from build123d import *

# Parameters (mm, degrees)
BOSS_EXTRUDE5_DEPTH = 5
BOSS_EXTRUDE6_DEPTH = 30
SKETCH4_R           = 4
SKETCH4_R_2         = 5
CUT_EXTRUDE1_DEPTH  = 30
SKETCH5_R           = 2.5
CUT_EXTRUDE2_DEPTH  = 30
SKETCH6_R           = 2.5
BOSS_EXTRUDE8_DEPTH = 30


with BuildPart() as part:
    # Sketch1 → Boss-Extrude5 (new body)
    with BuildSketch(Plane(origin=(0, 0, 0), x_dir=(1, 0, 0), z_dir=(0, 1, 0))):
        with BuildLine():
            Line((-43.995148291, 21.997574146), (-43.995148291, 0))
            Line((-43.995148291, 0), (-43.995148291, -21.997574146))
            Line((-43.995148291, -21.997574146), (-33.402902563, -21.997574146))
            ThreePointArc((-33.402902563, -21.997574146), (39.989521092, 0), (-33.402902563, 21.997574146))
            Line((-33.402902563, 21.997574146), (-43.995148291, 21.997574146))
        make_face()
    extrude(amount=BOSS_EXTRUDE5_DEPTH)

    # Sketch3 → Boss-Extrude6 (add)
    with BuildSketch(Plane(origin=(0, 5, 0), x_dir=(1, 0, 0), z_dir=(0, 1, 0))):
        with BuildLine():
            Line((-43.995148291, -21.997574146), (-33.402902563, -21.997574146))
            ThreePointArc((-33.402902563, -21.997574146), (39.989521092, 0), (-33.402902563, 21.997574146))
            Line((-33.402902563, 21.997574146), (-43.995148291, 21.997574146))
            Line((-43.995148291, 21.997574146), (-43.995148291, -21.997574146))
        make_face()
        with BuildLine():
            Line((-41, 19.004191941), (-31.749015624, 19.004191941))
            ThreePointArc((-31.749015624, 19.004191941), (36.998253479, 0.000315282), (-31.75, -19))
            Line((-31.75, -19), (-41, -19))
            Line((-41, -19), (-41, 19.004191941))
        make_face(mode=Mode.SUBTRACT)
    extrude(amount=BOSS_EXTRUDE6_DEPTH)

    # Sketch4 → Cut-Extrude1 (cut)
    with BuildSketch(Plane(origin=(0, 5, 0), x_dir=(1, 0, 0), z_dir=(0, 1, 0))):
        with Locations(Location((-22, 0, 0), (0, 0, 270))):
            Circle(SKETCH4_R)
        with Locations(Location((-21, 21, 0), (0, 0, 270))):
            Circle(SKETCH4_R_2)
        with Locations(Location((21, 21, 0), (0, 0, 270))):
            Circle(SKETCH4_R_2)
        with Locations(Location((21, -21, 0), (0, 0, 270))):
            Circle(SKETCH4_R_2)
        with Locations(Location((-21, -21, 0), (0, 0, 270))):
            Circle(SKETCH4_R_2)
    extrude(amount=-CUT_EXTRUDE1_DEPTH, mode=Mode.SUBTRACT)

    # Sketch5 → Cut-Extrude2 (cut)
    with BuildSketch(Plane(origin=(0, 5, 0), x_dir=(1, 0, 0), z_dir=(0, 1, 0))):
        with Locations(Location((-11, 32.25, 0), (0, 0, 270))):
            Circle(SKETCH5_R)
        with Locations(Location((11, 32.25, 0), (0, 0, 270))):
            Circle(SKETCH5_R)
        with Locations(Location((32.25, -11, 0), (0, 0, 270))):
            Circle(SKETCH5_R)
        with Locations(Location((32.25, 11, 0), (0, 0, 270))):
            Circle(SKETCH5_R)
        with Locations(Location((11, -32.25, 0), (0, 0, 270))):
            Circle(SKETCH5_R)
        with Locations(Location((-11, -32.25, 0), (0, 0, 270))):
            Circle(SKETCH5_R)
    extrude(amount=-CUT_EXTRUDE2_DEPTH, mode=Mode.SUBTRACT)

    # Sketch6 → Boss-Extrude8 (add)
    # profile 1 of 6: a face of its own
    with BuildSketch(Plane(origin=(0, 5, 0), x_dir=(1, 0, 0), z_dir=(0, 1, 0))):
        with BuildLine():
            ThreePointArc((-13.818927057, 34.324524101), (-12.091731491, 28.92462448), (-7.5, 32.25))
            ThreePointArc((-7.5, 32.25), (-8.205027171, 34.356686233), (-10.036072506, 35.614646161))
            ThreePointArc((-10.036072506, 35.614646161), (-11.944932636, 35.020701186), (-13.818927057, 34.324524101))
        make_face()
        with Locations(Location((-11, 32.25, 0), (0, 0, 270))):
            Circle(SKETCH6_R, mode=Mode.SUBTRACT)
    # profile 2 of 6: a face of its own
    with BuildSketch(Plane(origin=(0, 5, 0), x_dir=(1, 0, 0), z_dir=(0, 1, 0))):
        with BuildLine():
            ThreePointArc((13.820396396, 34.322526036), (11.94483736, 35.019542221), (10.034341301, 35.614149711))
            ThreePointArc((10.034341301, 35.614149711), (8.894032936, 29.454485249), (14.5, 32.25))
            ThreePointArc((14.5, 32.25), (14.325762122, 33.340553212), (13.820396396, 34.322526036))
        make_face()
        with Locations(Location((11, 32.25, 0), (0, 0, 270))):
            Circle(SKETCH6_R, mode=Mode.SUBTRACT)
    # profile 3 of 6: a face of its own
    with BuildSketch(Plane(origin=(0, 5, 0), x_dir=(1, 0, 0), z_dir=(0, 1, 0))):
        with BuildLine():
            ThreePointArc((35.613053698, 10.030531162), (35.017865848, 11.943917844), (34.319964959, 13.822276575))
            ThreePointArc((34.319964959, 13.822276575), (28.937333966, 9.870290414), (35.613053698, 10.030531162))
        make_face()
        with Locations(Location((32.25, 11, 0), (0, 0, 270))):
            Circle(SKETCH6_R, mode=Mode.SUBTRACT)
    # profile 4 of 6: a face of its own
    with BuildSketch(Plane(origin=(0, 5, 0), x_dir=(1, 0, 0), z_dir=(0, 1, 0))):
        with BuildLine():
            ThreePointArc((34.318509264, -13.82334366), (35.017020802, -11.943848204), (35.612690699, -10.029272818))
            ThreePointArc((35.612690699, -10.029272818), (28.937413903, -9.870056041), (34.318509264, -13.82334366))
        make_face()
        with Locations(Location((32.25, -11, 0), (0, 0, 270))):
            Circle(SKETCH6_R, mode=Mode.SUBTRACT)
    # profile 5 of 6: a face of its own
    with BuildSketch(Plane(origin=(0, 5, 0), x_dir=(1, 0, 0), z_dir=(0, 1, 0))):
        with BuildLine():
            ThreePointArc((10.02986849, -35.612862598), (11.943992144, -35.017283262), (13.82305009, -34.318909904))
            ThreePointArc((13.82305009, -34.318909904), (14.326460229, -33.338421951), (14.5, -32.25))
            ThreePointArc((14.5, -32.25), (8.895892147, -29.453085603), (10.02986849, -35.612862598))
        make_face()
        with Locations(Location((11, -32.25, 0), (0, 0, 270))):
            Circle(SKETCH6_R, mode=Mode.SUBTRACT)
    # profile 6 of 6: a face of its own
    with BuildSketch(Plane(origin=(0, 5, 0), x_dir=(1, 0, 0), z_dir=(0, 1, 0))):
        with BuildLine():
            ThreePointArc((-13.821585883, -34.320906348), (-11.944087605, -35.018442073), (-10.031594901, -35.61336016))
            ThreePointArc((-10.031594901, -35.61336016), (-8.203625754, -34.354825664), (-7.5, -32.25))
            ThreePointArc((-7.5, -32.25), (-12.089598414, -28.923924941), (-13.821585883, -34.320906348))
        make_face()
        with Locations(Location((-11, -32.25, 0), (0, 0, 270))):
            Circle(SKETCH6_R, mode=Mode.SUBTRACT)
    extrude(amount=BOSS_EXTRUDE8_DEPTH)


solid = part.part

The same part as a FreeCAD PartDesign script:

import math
import FreeCAD as App
import Part
import Sketcher
Q = App.Units.Quantity

doc = App.newDocument("Part")
body = doc.addObject("PartDesign::Body", "Body")

sketch1 = body.newObject("Sketcher::SketchObject", "Sketch")
sketch1.AttachmentSupport = (doc.getObject("XZ_Plane"), [""])
sketch1.MapMode = "FlatFace"
sketch1.addGeometry(Part.LineSegment(App.Vector(-43.995148, -21.997574, 0), App.Vector(-43.995148, 21.997574, 0)), False)
sketch1.addGeometry(Part.LineSegment(App.Vector(-43.995148, 21.997574, 0), App.Vector(-33.402903, 21.997574, 0)), False)
sketch1.addGeometry(Part.ArcOfCircle(Part.Circle(App.Vector(-0.003307, 0, 0), App.Vector(0, 0, 1), 39.992828), math.radians(-146.630382), math.radians(146.630382)), False)
sketch1.addGeometry(Part.LineSegment(App.Vector(-33.402903, -21.997574, 0), App.Vector(-43.995148, -21.997574, 0)), False)
sketch1.addConstraint(Sketcher.Constraint("Coincident", 0, 2, 1, 1))
sketch1.addConstraint(Sketcher.Constraint("Coincident", 1, 2, 2, 2))
sketch1.addConstraint(Sketcher.Constraint("Coincident", 2, 1, 3, 1))
sketch1.addConstraint(Sketcher.Constraint("Coincident", 3, 2, 0, 1))
sketch1.addConstraint(Sketcher.Constraint("Vertical", 0))
sketch1.addConstraint(Sketcher.Constraint("Horizontal", 1))
sketch1.addConstraint(Sketcher.Constraint("Horizontal", 3))
sketch1.addConstraint(Sketcher.Constraint("Symmetric", 1, 2, 2, 1, -1))
sketch1.addConstraint(Sketcher.Constraint("Radius", 2, Q("39.992828 mm")))
sketch1.addConstraint(Sketcher.Constraint("DistanceY", 0, 1, 0, 2, Q("43.995148 mm")))
sketch1.addConstraint(Sketcher.Constraint("DistanceX", 1, 1, 1, 2, Q("10.592246 mm")))
sketch1.addConstraint(Sketcher.Constraint("DistanceX", 0, 2, -1, 1, Q("43.995148 mm")))
pad1 = body.newObject("PartDesign::Pad", "Pad")
pad1.Profile = sketch1
pad1.Length = 5
pad1.Reversed = True

sketch2 = body.newObject("Sketcher::SketchObject", "Sketch001")
sketch2.AttachmentSupport = (doc.getObject("XZ_Plane"), [""])
sketch2.MapMode = "FlatFace"
sketch2.AttachmentOffset = App.Placement(App.Vector(0, 0, -5), App.Rotation())
sketch2.addGeometry(Part.LineSegment(App.Vector(-43.995148, 21.997574, 0), App.Vector(-33.402903, 21.997574, 0)), False)
sketch2.addGeometry(Part.ArcOfCircle(Part.Circle(App.Vector(-0.003307, 0, 0), App.Vector(0, 0, 1), 39.992828), math.radians(-146.630382), math.radians(146.630382)), False)
sketch2.addGeometry(Part.LineSegment(App.Vector(-33.402903, -21.997574, 0), App.Vector(-43.995148, -21.997574, 0)), False)
sketch2.addGeometry(Part.LineSegment(App.Vector(-43.995148, -21.997574, 0), App.Vector(-43.995148, 21.997574, 0)), False)
sketch2.addGeometry(Part.LineSegment(App.Vector(-41, 19, 0), App.Vector(-41, -19.004192, 0)), False)
sketch2.addGeometry(Part.LineSegment(App.Vector(-41, -19.004192, 0), App.Vector(-31.749016, -19.004192, 0)), False)
sketch2.addGeometry(Part.ArcOfCircle(Part.Circle(App.Vector(-0.001747, -0.001274, 0), App.Vector(0, 0, 1), 37), math.radians(-149.096586), math.radians(149.099554)), False)
sketch2.addGeometry(Part.LineSegment(App.Vector(-31.75, 19, 0), App.Vector(-41, 19, 0)), False)
sketch2.addConstraint(Sketcher.Constraint("Coincident", 0, 2, 1, 2))
sketch2.addConstraint(Sketcher.Constraint("Coincident", 1, 1, 2, 1))
sketch2.addConstraint(Sketcher.Constraint("Coincident", 2, 2, 3, 1))
sketch2.addConstraint(Sketcher.Constraint("Coincident", 3, 2, 0, 1))
sketch2.addConstraint(Sketcher.Constraint("Coincident", 4, 2, 5, 1))
sketch2.addConstraint(Sketcher.Constraint("Coincident", 5, 2, 6, 1))
sketch2.addConstraint(Sketcher.Constraint("Coincident", 6, 2, 7, 1))
sketch2.addConstraint(Sketcher.Constraint("Coincident", 7, 2, 4, 1))
sketch2.addConstraint(Sketcher.Constraint("Horizontal", 0))
sketch2.addConstraint(Sketcher.Constraint("Horizontal", 2))
sketch2.addConstraint(Sketcher.Constraint("Vertical", 3))
sketch2.addConstraint(Sketcher.Constraint("Vertical", 4))
sketch2.addConstraint(Sketcher.Constraint("Horizontal", 5))
sketch2.addConstraint(Sketcher.Constraint("Horizontal", 7))
sketch2.addConstraint(Sketcher.Constraint("Symmetric", 0, 2, 1, 1, -1))
sketch2.addConstraint(Sketcher.Constraint("Radius", 6, Q("37 mm")))
sketch2.addConstraint(Sketcher.Constraint("DistanceX", 4, 2, -1, 1, Q("41 mm")))
sketch2.addConstraint(Sketcher.Constraint("DistanceY", -1, 1, 6, 2, Q("19 mm")))
sketch2.addConstraint(Sketcher.Constraint("DistanceX", 7, 2, 7, 1, Q("9.25 mm")))
sketch2.addConstraint(Sketcher.Constraint("Radius", 1, Q("39.992828 mm")))
sketch2.addConstraint(Sketcher.Constraint("DistanceY", 3, 1, 3, 2, Q("43.995148 mm")))
sketch2.addConstraint(Sketcher.Constraint("DistanceY", 4, 2, 4, 1, Q("38.004192 mm")))
sketch2.addConstraint(Sketcher.Constraint("DistanceY", 1, 1, 6, 3, Q("21.9963 mm")))
sketch2.addConstraint(Sketcher.Constraint("DistanceX", 2, 2, 6, 3, Q("43.993402 mm")))
sketch2.addConstraint(Sketcher.Constraint("DistanceX", 0, 1, 0, 2, Q("10.592246 mm")))
pad2 = body.newObject("PartDesign::Pad", "Pad001")
pad2.Profile = sketch2
pad2.Length = 30
pad2.Reversed = True

sketch3 = body.newObject("Sketcher::SketchObject", "Sketch002")
sketch3.AttachmentSupport = (doc.getObject("XZ_Plane"), [""])
sketch3.MapMode = "FlatFace"
sketch3.AttachmentOffset = App.Placement(App.Vector(0, 0, -5), App.Rotation())
sketch3.addGeometry(Part.Circle(App.Vector(-22, 0, 0), App.Vector(0, 0, 1), 4), False)
sketch3.addGeometry(Part.Circle(App.Vector(-21, -21, 0), App.Vector(0, 0, 1), 5), False)
sketch3.addGeometry(Part.Circle(App.Vector(21, -21, 0), App.Vector(0, 0, 1), 5), False)
sketch3.addGeometry(Part.Circle(App.Vector(21, 21, 0), App.Vector(0, 0, 1), 5), False)
sketch3.addGeometry(Part.Circle(App.Vector(-21, 21, 0), App.Vector(0, 0, 1), 5), False)
sketch3.addConstraint(Sketcher.Constraint("Equal", 1, 2))
sketch3.addConstraint(Sketcher.Constraint("Equal", 2, 3))
sketch3.addConstraint(Sketcher.Constraint("Equal", 3, 4))
sketch3.addConstraint(Sketcher.Constraint("Symmetric", 1, 3, 3, 3, -1, 1))
sketch3.addConstraint(Sketcher.Constraint("Symmetric", 2, 3, 4, 3, -1, 1))
sketch3.addConstraint(Sketcher.Constraint("Symmetric", 1, 3, 2, 3, -2))
sketch3.addConstraint(Sketcher.Constraint("PointOnObject", 0, 3, -1))
sketch3.addConstraint(Sketcher.Constraint("Diameter", 0, Q("8 mm")))
sketch3.addConstraint(Sketcher.Constraint("Diameter", 1, Q("10 mm")))
sketch3.addConstraint(Sketcher.Constraint("DistanceX", 0, 3, -1, 1, Q("22 mm")))
sketch3.addConstraint(Sketcher.Constraint("DistanceX", 1, 3, -1, 1, Q("21 mm")))
sketch3.addConstraint(Sketcher.Constraint("DistanceY", 1, 3, -1, 1, Q("21 mm")))
pocket1 = body.newObject("PartDesign::Pocket", "Pocket")
pocket1.Profile = sketch3
pocket1.Length = 30
pocket1.Reversed = True

sketch4 = body.newObject("Sketcher::SketchObject", "Sketch003")
sketch4.AttachmentSupport = (doc.getObject("XZ_Plane"), [""])
sketch4.MapMode = "FlatFace"
sketch4.AttachmentOffset = App.Placement(App.Vector(0, 0, -5), App.Rotation())
sketch4.addGeometry(Part.Circle(App.Vector(-11, -32.25, 0), App.Vector(0, 0, 1), 2.5), False)
sketch4.addGeometry(Part.Circle(App.Vector(11, -32.25, 0), App.Vector(0, 0, 1), 2.5), False)
sketch4.addGeometry(Part.Circle(App.Vector(32.25, 11, 0), App.Vector(0, 0, 1), 2.5), False)
sketch4.addGeometry(Part.Circle(App.Vector(32.25, -11, 0), App.Vector(0, 0, 1), 2.5), False)
sketch4.addGeometry(Part.Circle(App.Vector(11, 32.25, 0), App.Vector(0, 0, 1), 2.5), False)
sketch4.addGeometry(Part.Circle(App.Vector(-11, 32.25, 0), App.Vector(0, 0, 1), 2.5), False)
sketch4.addConstraint(Sketcher.Constraint("Equal", 0, 1))
sketch4.addConstraint(Sketcher.Constraint("Equal", 1, 2))
sketch4.addConstraint(Sketcher.Constraint("Equal", 2, 3))
sketch4.addConstraint(Sketcher.Constraint("Equal", 3, 4))
sketch4.addConstraint(Sketcher.Constraint("Equal", 4, 5))
sketch4.addConstraint(Sketcher.Constraint("Symmetric", 0, 3, 4, 3, -1, 1))
sketch4.addConstraint(Sketcher.Constraint("Symmetric", 1, 3, 5, 3, -1, 1))
sketch4.addConstraint(Sketcher.Constraint("Symmetric", 0, 3, 1, 3, -2))
sketch4.addConstraint(Sketcher.Constraint("Symmetric", 2, 3, 3, 3, -1))
sketch4.addConstraint(Sketcher.Constraint("Diameter", 0, Q("5 mm")))
sketch4.addConstraint(Sketcher.Constraint("DistanceX", 0, 3, -1, 1, Q("11 mm")))
sketch4.addConstraint(Sketcher.Constraint("DistanceY", -1, 1, 2, 3, Q("11 mm")))
sketch4.addConstraint(Sketcher.Constraint("DistanceY", 1, 3, 4, 3, Q("64.5 mm")))
sketch4.addConstraint(Sketcher.Constraint("DistanceX", -1, 1, 2, 3, Q("32.25 mm")))
pocket2 = body.newObject("PartDesign::Pocket", "Pocket001")
pocket2.Profile = sketch4
pocket2.Length = 30
pocket2.Reversed = True

sketch5 = body.newObject("Sketcher::SketchObject", "Sketch004")
sketch5.AttachmentSupport = (doc.getObject("XZ_Plane"), [""])
sketch5.MapMode = "FlatFace"
sketch5.AttachmentOffset = App.Placement(App.Vector(0, 0, -5), App.Rotation())
sketch5.addGeometry(Part.ArcOfCircle(Part.Circle(App.Vector(-11, -32.25, 0), App.Vector(0, 0, 1), 3.5), math.radians(0), math.radians(216.35035)), False)
sketch5.addGeometry(Part.ArcOfCircle(Part.Circle(App.Vector(-11, -32.25, 0), App.Vector(0, 0, 1), 3.5), math.radians(-74.013679), math.radians(0)), False)
sketch5.addGeometry(Part.ArcOfCircle(Part.Circle(App.Vector(-0.001746, -0.001274, 0), App.Vector(0, 0, 1), 37), math.radians(-111.927762), math.radians(-105.735567)), False)
sketch5.addGeometry(Part.Circle(App.Vector(-11, -32.25, 0), App.Vector(0, 0, 1), 2.5), False)
sketch5.addGeometry(Part.ArcOfCircle(Part.Circle(App.Vector(-0.001747, -0.001274, 0), App.Vector(0, 0, 1), 37), math.radians(-74.261598), math.radians(-68.063954)), False)
sketch5.addGeometry(Part.ArcOfCircle(Part.Circle(App.Vector(11, -32.25, 0), App.Vector(0, 0, 1), 3.5), math.radians(0), math.radians(253.984196)), False)
sketch5.addGeometry(Part.ArcOfCircle(Part.Circle(App.Vector(11, -32.25, 0), App.Vector(0, 0, 1), 3.5), math.radians(-36.309749), math.radians(0)), False)
sketch5.addGeometry(Part.Circle(App.Vector(11, -32.25, 0), App.Vector(0, 0, 1), 2.5), False)
sketch5.addGeometry(Part.ArcOfCircle(Part.Circle(App.Vector(-0.001747, -0.001274, 0), App.Vector(0, 0, 1), 37), math.radians(-21.934143), math.radians(-15.727413)), False)
sketch5.addGeometry(Part.ArcOfCircle(Part.Circle(App.Vector(32.25, -11, 0), App.Vector(0, 0, 1), 3.5), math.radians(16.080706), math.radians(306.257738)), False)
sketch5.addGeometry(Part.Circle(App.Vector(32.25, -11, 0), App.Vector(0, 0, 1), 2.5), False)
sketch5.addGeometry(Part.ArcOfCircle(Part.Circle(App.Vector(-0.001747, -0.001274, 0), App.Vector(0, 0, 1), 37), math.radians(15.729487), math.radians(21.940177)), False)
sketch5.addGeometry(Part.ArcOfCircle(Part.Circle(App.Vector(32.25, 11, 0), App.Vector(0, 0, 1), 3.5), math.radians(53.771809), math.radians(343.897855)), False)
sketch5.addGeometry(Part.Circle(App.Vector(32.25, 11, 0), App.Vector(0, 0, 1), 2.5), False)
sketch5.addGeometry(Part.ArcOfCircle(Part.Circle(App.Vector(-0.001747, -0.001274, 0), App.Vector(0, 0, 1), 37), math.radians(68.059524), math.radians(74.268794)), False)
sketch5.addGeometry(Part.ArcOfCircle(Part.Circle(App.Vector(11, 32.25, 0), App.Vector(0, 0, 1), 3.5), math.radians(0), math.radians(36.236322)), False)
sketch5.addGeometry(Part.ArcOfCircle(Part.Circle(App.Vector(11, 32.25, 0), App.Vector(0, 0, 1), 3.5), math.radians(106.091996), math.radians(360)), False)
sketch5.addGeometry(Part.Circle(App.Vector(11, 32.25, 0), App.Vector(0, 0, 1), 2.5), False)
sketch5.addGeometry(Part.ArcOfCircle(Part.Circle(App.Vector(-0.001747, -0.001274, 0), App.Vector(0, 0, 1), 37), math.radians(105.728364), math.radians(111.932201)), False)
sketch5.addGeometry(Part.ArcOfCircle(Part.Circle(App.Vector(-11, 32.25, 0), App.Vector(0, 0, 1), 3.5), math.radians(143.723148), math.radians(433.937416)), False)
sketch5.addGeometry(Part.Circle(App.Vector(-11, 32.25, 0), App.Vector(0, 0, 1), 2.5), False)
sketch5.addConstraint(Sketcher.Constraint("Tangent", 0, 1, 1, 2))
sketch5.addConstraint(Sketcher.Constraint("Coincident", 1, 1, 2, 2))
sketch5.addConstraint(Sketcher.Constraint("Coincident", 2, 1, 0, 2))
sketch5.addConstraint(Sketcher.Constraint("Coincident", 4, 1, 5, 2))
sketch5.addConstraint(Sketcher.Constraint("Tangent", 5, 1, 6, 2))
sketch5.addConstraint(Sketcher.Constraint("Coincident", 6, 1, 4, 2))
sketch5.addConstraint(Sketcher.Constraint("Coincident", 8, 1, 9, 2))
sketch5.addConstraint(Sketcher.Constraint("Coincident", 9, 1, 8, 2))
sketch5.addConstraint(Sketcher.Constraint("Coincident", 11, 1, 12, 2))
sketch5.addConstraint(Sketcher.Constraint("Coincident", 12, 1, 11, 2))
sketch5.addConstraint(Sketcher.Constraint("Coincident", 14, 1, 15, 2))
sketch5.addConstraint(Sketcher.Constraint("Tangent", 15, 1, 16, 2))
sketch5.addConstraint(Sketcher.Constraint("Coincident", 16, 1, 14, 2))
sketch5.addConstraint(Sketcher.Constraint("Coincident", 18, 1, 19, 2))
sketch5.addConstraint(Sketcher.Constraint("Coincident", 19, 1, 18, 2))
sketch5.addConstraint(Sketcher.Constraint("Coincident", 3, 3, 0, 3))
sketch5.addConstraint(Sketcher.Constraint("Coincident", 4, 3, 2, 3))
sketch5.addConstraint(Sketcher.Constraint("Coincident", 7, 3, 5, 3))
sketch5.addConstraint(Sketcher.Constraint("Coincident", 8, 3, 2, 3))
sketch5.addConstraint(Sketcher.Constraint("Coincident", 10, 3, 9, 3))
sketch5.addConstraint(Sketcher.Constraint("Coincident", 11, 3, 2, 3))
sketch5.addConstraint(Sketcher.Constraint("Coincident", 13, 3, 12, 3))
sketch5.addConstraint(Sketcher.Constraint("Coincident", 14, 3, 2, 3))
sketch5.addConstraint(Sketcher.Constraint("Coincident", 17, 3, 15, 3))
sketch5.addConstraint(Sketcher.Constraint("Coincident", 18, 3, 2, 3))
sketch5.addConstraint(Sketcher.Constraint("Coincident", 20, 3, 19, 3))
sketch5.addConstraint(Sketcher.Constraint("Equal", 0, 1))
sketch5.addConstraint(Sketcher.Constraint("Equal", 2, 4))
sketch5.addConstraint(Sketcher.Constraint("Equal", 1, 5))
sketch5.addConstraint(Sketcher.Constraint("Equal", 5, 6))
sketch5.addConstraint(Sketcher.Constraint("Equal", 3, 7))
sketch5.addConstraint(Sketcher.Constraint("Equal", 4, 8))
sketch5.addConstraint(Sketcher.Constraint("Equal", 6, 9))
sketch5.addConstraint(Sketcher.Constraint("Equal", 7, 10))
sketch5.addConstraint(Sketcher.Constraint("Equal", 8, 11))
sketch5.addConstraint(Sketcher.Constraint("Equal", 9, 12))
sketch5.addConstraint(Sketcher.Constraint("Equal", 10, 13))
sketch5.addConstraint(Sketcher.Constraint("Equal", 11, 14))
sketch5.addConstraint(Sketcher.Constraint("Equal", 12, 15))
sketch5.addConstraint(Sketcher.Constraint("Equal", 15, 16))
sketch5.addConstraint(Sketcher.Constraint("Equal", 13, 17))
sketch5.addConstraint(Sketcher.Constraint("Equal", 14, 18))
sketch5.addConstraint(Sketcher.Constraint("Equal", 16, 19))
sketch5.addConstraint(Sketcher.Constraint("Equal", 17, 20))
sketch5.addConstraint(Sketcher.Constraint("Symmetric", 0, 3, 15, 3, -1, 1))
sketch5.addConstraint(Sketcher.Constraint("Symmetric", 5, 3, 19, 3, -1, 1))
sketch5.addConstraint(Sketcher.Constraint("Symmetric", 0, 3, 5, 3, -2))
sketch5.addConstraint(Sketcher.Constraint("Symmetric", 9, 3, 12, 3, -1))
sketch5.addConstraint(Sketcher.Constraint("Horizontal", 7, 3, 0, 1))
sketch5.addConstraint(Sketcher.Constraint("Horizontal", 0, 1, 5, 1))
sketch5.addConstraint(Sketcher.Constraint("Horizontal", 20, 3, 15, 1))
sketch5.addConstraint(Sketcher.Constraint("Diameter", 3, Q("5 mm")))
sketch5.addConstraint(Sketcher.Constraint("Radius", 2, Q("37 mm")))
sketch5.addConstraint(Sketcher.Constraint("Radius", 0, Q("3.5 mm")))
sketch5.addConstraint(Sketcher.Constraint("DistanceX", 0, 3, -1, 1, Q("11 mm")))
sketch5.addConstraint(Sketcher.Constraint("DistanceY", 9, 3, -1, 1, Q("11 mm")))
sketch5.addConstraint(Sketcher.Constraint("DistanceY", 0, 3, -1, 1, Q("32.25 mm")))
sketch5.addConstraint(Sketcher.Constraint("DistanceX", -1, 1, 9, 3, Q("32.25 mm")))
sketch5.addConstraint(Sketcher.Constraint("DistanceX", -1, 1, 4, 1, Q("10.034341 mm")))
sketch5.addConstraint(Sketcher.Constraint("DistanceY", 9, 1, -1, 1, Q("10.030531 mm")))
pad3 = body.newObject("PartDesign::Pad", "Pad002")
pad3.Profile = sketch5
pad3.Length = 30
pad3.Reversed = True

doc.recompute()
